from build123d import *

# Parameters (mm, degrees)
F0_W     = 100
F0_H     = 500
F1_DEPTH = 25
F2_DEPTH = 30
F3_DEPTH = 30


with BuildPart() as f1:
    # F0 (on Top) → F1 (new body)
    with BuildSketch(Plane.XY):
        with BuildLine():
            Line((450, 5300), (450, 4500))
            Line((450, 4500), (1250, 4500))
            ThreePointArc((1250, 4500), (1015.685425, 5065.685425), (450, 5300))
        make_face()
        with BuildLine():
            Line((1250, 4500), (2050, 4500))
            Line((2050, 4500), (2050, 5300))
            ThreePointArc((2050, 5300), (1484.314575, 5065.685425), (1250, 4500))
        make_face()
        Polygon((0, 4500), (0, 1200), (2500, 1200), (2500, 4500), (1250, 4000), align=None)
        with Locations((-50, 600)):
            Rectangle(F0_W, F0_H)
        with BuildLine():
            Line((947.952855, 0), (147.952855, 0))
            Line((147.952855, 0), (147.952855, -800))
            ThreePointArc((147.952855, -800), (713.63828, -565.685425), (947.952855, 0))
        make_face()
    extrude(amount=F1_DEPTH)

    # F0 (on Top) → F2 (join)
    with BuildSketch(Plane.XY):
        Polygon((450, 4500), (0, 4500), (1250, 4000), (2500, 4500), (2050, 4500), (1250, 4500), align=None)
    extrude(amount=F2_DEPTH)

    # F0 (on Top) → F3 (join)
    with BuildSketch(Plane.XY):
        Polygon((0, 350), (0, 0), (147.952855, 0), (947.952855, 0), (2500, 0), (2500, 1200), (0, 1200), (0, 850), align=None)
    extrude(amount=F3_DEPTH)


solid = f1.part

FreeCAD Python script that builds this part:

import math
import FreeCAD as App
import Part
import Sketcher
from FreeCAD import Vector

doc = App.newDocument("Part")
params = doc.addObject("Spreadsheet::Sheet", "Params")
for row, (alias, value) in enumerate([
    ("sketch1_radius", "800 mm"),
    ("sketch1_width", "2500 mm"),
    ("sketch1_width2", "100 mm"),
    ("sketch1_height", "3300 mm"),
    ("sketch1_height2", "500 mm"),
    ("pad1_length", "25 mm"),
    ("sketch2_width", "2500 mm"),
    ("pad2_length", "30 mm"),
    ("sketch3_width", "2500 mm"),
    ("sketch3_height", "1200 mm"),
    ("pad3_length", "30 mm"),
], start=1):
    params.set(f"A{row}", alias)
    params.set(f"B{row}", "=" + value)
    params.setAlias(f"B{row}", alias)

body = doc.addObject("PartDesign::Body", "Body")
body.AllowCompound = True

sketch1 = doc.addObject("Sketcher::SketchObject", "Sketch")
body.addObject(sketch1)
sketch1.AttachmentSupport = (doc.XY_Plane, [""])
sketch1.MapMode = "FlatFace"
sketch1.addGeometry(Part.LineSegment(Vector(450, 5300, 0), Vector(450, 4500, 0)), False)
sketch1.addGeometry(Part.LineSegment(Vector(450, 4500, 0), Vector(1250, 4500, 0)), False)
sketch1.addGeometry(Part.ArcOfCircle(Part.Circle(Vector(450, 4500, 0), Vector(0, 0, 1), 800), math.radians(0), math.radians(90)), False)
sketch1.addGeometry(Part.LineSegment(Vector(1250, 4500, 0), Vector(2050, 4500, 0)), False)
sketch1.addGeometry(Part.LineSegment(Vector(2050, 4500, 0), Vector(2050, 5300, 0)), False)
sketch1.addGeometry(Part.ArcOfCircle(Part.Circle(Vector(2050, 4500, 0), Vector(0, 0, 1), 800), math.radians(90), math.radians(180)), False)
sketch1.addGeometry(Part.LineSegment(Vector(0, 4500, 0), Vector(0, 1200, 0)), False)
sketch1.addGeometry(Part.LineSegment(Vector(0, 1200, 0), Vector(2500, 1200, 0)), False)
sketch1.addGeometry(Part.LineSegment(Vector(2500, 1200, 0), Vector(2500, 4500, 0)), False)
sketch1.addGeometry(Part.LineSegment(Vector(2500, 4500, 0), Vector(1250, 4000, 0)), False)
sketch1.addGeometry(Part.LineSegment(Vector(1250, 4000, 0), Vector(0, 4500, 0)), False)
sketch1.addGeometry(Part.LineSegment(Vector(-100, 850, 0), Vector(-100, 350, 0)), False)
sketch1.addGeometry(Part.LineSegment(Vector(-100, 350, 0), Vector(0, 350, 0)), False)
sketch1.addGeometry(Part.LineSegment(Vector(0, 350, 0), Vector(0, 850, 0)), False)
sketch1.addGeometry(Part.LineSegment(Vector(0, 850, 0), Vector(-100, 850, 0)), False)
sketch1.addGeometry(Part.LineSegment(Vector(948, 0, 0), Vector(148, 0, 0)), False)
sketch1.addGeometry(Part.LineSegment(Vector(148, 0, 0), Vector(148, -800, 0)), False)
sketch1.addGeometry(Part.ArcOfCircle(Part.Circle(Vector(148, 0, 0), Vector(0, 0, 1), 800), math.radians(-90), math.radians(0)), False)
sketch1.addConstraint(Sketcher.Constraint("Coincident", 0, 2, 1, 1))
sketch1.addConstraint(Sketcher.Constraint("Coincident", 1, 2, 2, 1))
sketch1.addConstraint(Sketcher.Constraint("Coincident", 2, 2, 0, 1))
sketch1.addConstraint(Sketcher.Constraint("Coincident", 3, 2, 4, 1))
sketch1.addConstraint(Sketcher.Constraint("Coincident", 4, 2, 5, 1))
sketch1.addConstraint(Sketcher.Constraint("Coincident", 5, 2, 3, 1))
sketch1.addConstraint(Sketcher.Constraint("Coincident", 6, 2, 7, 1))
sketch1.addConstraint(Sketcher.Constraint("Coincident", 7, 2, 8, 1))
sketch1.addConstraint(Sketcher.Constraint("Coincident", 8, 2, 9, 1))
sketch1.addConstraint(Sketcher.Constraint("Coincident", 9, 2, 10, 1))
sketch1.addConstraint(Sketcher.Constraint("Coincident", 10, 2, 6, 1))
sketch1.addConstraint(Sketcher.Constraint("Coincident", 11, 2, 12, 1))
sketch1.addConstraint(Sketcher.Constraint("Coincident", 12, 2, 13, 1))
sketch1.addConstraint(Sketcher.Constraint("Coincident", 13, 2, 14, 1))
sketch1.addConstraint(Sketcher.Constraint("Coincident", 14, 2, 11, 1))
sketch1.addConstraint(Sketcher.Constraint("Coincident", 15, 2, 16, 1))
sketch1.addConstraint(Sketcher.Constraint("Coincident", 16, 2, 17, 1))
sketch1.addConstraint(Sketcher.Constraint("Coincident", 17, 2, 15, 1))
sketch1.addConstraint(Sketcher.Constraint("Vertical", 0))
sketch1.addConstraint(Sketcher.Constraint("Horizontal", 1))
sketch1.addConstraint(Sketcher.Constraint("Horizontal", 3))
sketch1.addConstraint(Sketcher.Constraint("Vertical", 4))
sketch1.addConstraint(Sketcher.Constraint("Vertical", 6))
sketch1.addConstraint(Sketcher.Constraint("Horizontal", 7))
sketch1.addConstraint(Sketcher.Constraint("Vertical", 8))
sketch1.addConstraint(Sketcher.Constraint("Vertical", 11))
sketch1.addConstraint(Sketcher.Constraint("Horizontal", 12))
sketch1.addConstraint(Sketcher.Constraint("Vertical", 13))
sketch1.addConstraint(Sketcher.Constraint("Horizontal", 14))
sketch1.addConstraint(Sketcher.Constraint("Horizontal", 15))
sketch1.addConstraint(Sketcher.Constraint("Vertical", 16))
sketch1.addConstraint(Sketcher.Constraint("Coincident", 0, 2, 2, 3))
sketch1.addConstraint(Sketcher.Constraint("Coincident", 3, 2, 5, 3))
sketch1.addConstraint(Sketcher.Constraint("Coincident", 15, 2, 17, 3))
sketch1.addConstraint(Sketcher.Constraint("Equal", 2, 5))
sketch1.addConstraint(Sketcher.Constraint("Equal", 5, 17))
sketch1.addConstraint(Sketcher.Constraint("PointOnObject", 17, 3, -1))
sketch1.addConstraint(Sketcher.Constraint("PointOnObject", 6, 2, -2))
sketch1.addConstraint(Sketcher.Constraint("PointOnObject", 12, 2, -2))
sketch1.addConstraint(Sketcher.Constraint("Horizontal", 2, 3, 5, 3))
sketch1.addConstraint(Sketcher.Constraint("Horizontal", 8, 2, 10, 2))
sketch1.addConstraint(Sketcher.Constraint("Vertical", 5, 2, 9, 2))
sketch1.addConstraint(Sketcher.Constraint("Equal", 9, 10))
sketch1.addConstraint(Sketcher.Constraint("Radius", 2, 800.0))
sketch1.addConstraint(Sketcher.Constraint("DistanceX", 7, 1, 7, 2, 2500.0))
sketch1.addConstraint(Sketcher.Constraint("DistanceX", 12, 1, 12, 2, 100.0))
sketch1.addConstraint(Sketcher.Constraint("DistanceY", 6, 2, 6, 1, 3300.0))
sketch1.addConstraint(Sketcher.Constraint("DistanceY", 11, 2, 11, 1, 500.0))
sketch1.addConstraint(Sketcher.Constraint("DistanceX", -1, 1, 2, 3, 450.0))
sketch1.addConstraint(Sketcher.Constraint("DistanceY", -1, 1, 2, 3, 4500.0))
sketch1.addConstraint(Sketcher.Constraint("DistanceY", -1, 1, 6, 2, 1200.0))
sketch1.addConstraint(Sketcher.Constraint("DistanceY", -1, 1, 9, 2, 4000.0))
sketch1.addConstraint(Sketcher.Constraint("DistanceY", -1, 1, 11, 2, 350.0))
sketch1.addConstraint(Sketcher.Constraint("DistanceX", -1, 1, 17, 3, 147.952855))
sketch1.setExpression("Constraints[43]", "Params.sketch1_radius")
sketch1.setExpression("Constraints[44]", "Params.sketch1_width")
sketch1.setExpression("Constraints[45]", "Params.sketch1_width2")
sketch1.setExpression("Constraints[46]", "Params.sketch1_height")
sketch1.setExpression("Constraints[47]", "Params.sketch1_height2")
pad1 = doc.addObject("PartDesign::Pad", "Pad")
body.addObject(pad1)
pad1.Profile = sketch1
pad1.setExpression("Length", "Params.pad1_length")

sketch2 = doc.addObject("Sketcher::SketchObject", "Sketch001")
body.addObject(sketch2)
sketch2.AttachmentSupport = (doc.XY_Plane, [""])
sketch2.MapMode = "FlatFace"
sketch2.addGeometry(Part.LineSegment(Vector(0, 4500, 0), Vector(1250, 4000, 0)), False)
sketch2.addGeometry(Part.LineSegment(Vector(1250, 4000, 0), Vector(2500, 4500, 0)), False)
sketch2.addGeometry(Part.LineSegment(Vector(2500, 4500, 0), Vector(0, 4500, 0)), False)
sketch2.addConstraint(Sketcher.Constraint("Coincident", 0, 2, 1, 1))
sketch2.addConstraint(Sketcher.Constraint("Coincident", 1, 2, 2, 1))
sketch2.addConstraint(Sketcher.Constraint("Coincident", 2, 2, 0, 1))
sketch2.addConstraint(Sketcher.Constraint("Horizontal", 2))
sketch2.addConstraint(Sketcher.Constraint("PointOnObject", 2, 2, -2))
sketch2.addConstraint(Sketcher.Constraint("Equal", 0, 1))
sketch2.addConstraint(Sketcher.Constraint("DistanceX", 2, 2, 2, 1, 2500.0))
sketch2.addConstraint(Sketcher.Constraint("DistanceY", -1, 1, 0, 2, 4000.0))
sketch2.addConstraint(Sketcher.Constraint("DistanceY", -1, 1, 1, 2, 4500.0))
sketch2.setExpression("Constraints[6]", "Params.sketch2_width")
pad2 = doc.addObject("PartDesign::Pad", "Pad001")
body.addObject(pad2)
pad2.Profile = sketch2
pad2.setExpression("Length", "Params.pad2_length")

sketch3 = doc.addObject("Sketcher::SketchObject", "Sketch002")
body.addObject(sketch3)
sketch3.AttachmentSupport = (doc.XY_Plane, [""])
sketch3.MapMode = "FlatFace"
sketch3.addGeometry(Part.LineSegment(Vector(0, 0, 0), Vector(2500, 0, 0)), False)
sketch3.addGeometry(Part.LineSegment(Vector(2500, 0, 0), Vector(2500, 1200, 0)), False)
sketch3.addGeometry(Part.LineSegment(Vector(2500, 1200, 0), Vector(0, 1200, 0)), False)
sketch3.addGeometry(Part.LineSegment(Vector(0, 1200, 0), Vector(0, 0, 0)), False)
sketch3.addConstraint(Sketcher.Constraint("Coincident", 0, 2, 1, 1))
sketch3.addConstraint(Sketcher.Constraint("Coincident", 1, 2, 2, 1))
sketch3.addConstraint(Sketcher.Constraint("Coincident", 2, 2, 3, 1))
sketch3.addConstraint(Sketcher.Constraint("Coincident", 3, 2, 0, 1))
sketch3.addConstraint(Sketcher.Constraint("Horizontal", 0))
sketch3.addConstraint(Sketcher.Constraint("Vertical", 1))
sketch3.addConstraint(Sketcher.Constraint("Horizontal", 2))
sketch3.addConstraint(Sketcher.Constraint("Vertical", 3))
sketch3.addConstraint(Sketcher.Constraint("Coincident", 3, 2, -1, 1))
sketch3.addConstraint(Sketcher.Constraint("DistanceX", 0, 1, 0, 2, 2500.0))
sketch3.addConstraint(Sketcher.Constraint("DistanceY", 1, 1, 1, 2, 1200.0))
sketch3.setExpression("Constraints[9]", "Params.sketch3_width")
sketch3.setExpression("Constraints[10]", "Params.sketch3_height")
pad3 = doc.addObject("PartDesign::Pad", "Pad002")
body.addObject(pad3)
pad3.Profile = sketch3
pad3.setExpression("Length", "Params.pad3_length")

doc.recompute()
